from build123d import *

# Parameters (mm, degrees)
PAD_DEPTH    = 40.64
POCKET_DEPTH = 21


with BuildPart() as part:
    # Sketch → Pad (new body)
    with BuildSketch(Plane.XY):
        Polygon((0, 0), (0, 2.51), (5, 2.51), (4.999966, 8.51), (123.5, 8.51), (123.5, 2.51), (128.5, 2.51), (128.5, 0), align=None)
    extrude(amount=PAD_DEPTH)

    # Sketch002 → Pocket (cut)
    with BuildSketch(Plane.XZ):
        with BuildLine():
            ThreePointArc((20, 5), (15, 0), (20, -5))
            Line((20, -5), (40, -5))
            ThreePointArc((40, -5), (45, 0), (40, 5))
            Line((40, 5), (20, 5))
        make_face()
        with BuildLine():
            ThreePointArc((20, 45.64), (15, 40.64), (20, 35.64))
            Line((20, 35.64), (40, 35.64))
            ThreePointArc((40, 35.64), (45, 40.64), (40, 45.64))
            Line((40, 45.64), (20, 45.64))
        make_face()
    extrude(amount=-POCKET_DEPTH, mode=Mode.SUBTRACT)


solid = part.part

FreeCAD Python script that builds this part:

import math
import FreeCAD as App
import Part
import Sketcher

V = App.Vector


def add_polygon(sketch, points):
    """Adds a closed chain of lines whose ends are joined by coincident constraints."""
    first, n = sketch.GeometryCount, len(points)
    for a, b in zip(points, points[1:] + points[:1]):
        sketch.addGeometry(Part.LineSegment(App.Vector(*a, 0), App.Vector(*b, 0)), False)
    for i in range(n):
        sketch.addConstraint(Sketcher.Constraint("Coincident", first + i, 2, first + (i + 1) % n, 1))

doc = App.newDocument("Part")
body = doc.addObject("PartDesign::Body", "Body")

sketch1 = body.newObject("Sketcher::SketchObject", "Sketch")
sketch1.AttachmentSupport = (doc.getObject("XY_Plane"), [""])
sketch1.MapMode = "FlatFace"
add_polygon(sketch1, [(0, 2.51), (0, 0), (128.5, 0), (128.5, 2.51), (123.5, 2.51), (123.5, 8.51), (4.999966, 8.51), (5, 2.51)])
sketch1.addConstraint(Sketcher.Constraint("Vertical", 0))
sketch1.addConstraint(Sketcher.Constraint("Horizontal", 1))
sketch1.addConstraint(Sketcher.Constraint("Vertical", 2))
sketch1.addConstraint(Sketcher.Constraint("Horizontal", 3))
sketch1.addConstraint(Sketcher.Constraint("Vertical", 4))
sketch1.addConstraint(Sketcher.Constraint("Horizontal", 5))
sketch1.addConstraint(Sketcher.Constraint("Horizontal", 7))
sketch1.addConstraint(Sketcher.Constraint("Coincident", 0, 2, -1, 1))
sketch1.addConstraint(Sketcher.Constraint("Horizontal", 3, 2, 6, 2))
sketch1.addConstraint(Sketcher.Constraint("Equal", 3, 7))
sketch1.addConstraint(Sketcher.Constraint("DistanceX", 3, 2, 3, 1, 5.0))
sketch1.addConstraint(Sketcher.Constraint("DistanceY", 4, 1, 4, 2, 6.0))
sketch1.addConstraint(Sketcher.Constraint("DistanceX", 1, 1, 1, 2, 128.5))
sketch1.addConstraint(Sketcher.Constraint("DistanceY", 0, 2, 0, 1, 2.51))
sketch1.addConstraint(Sketcher.Constraint("DistanceX", 5, 2, 5, 1, 118.500034))
pad1 = body.newObject("PartDesign::Pad", "Pad")
pad1.Profile = sketch1
pad1.Length = 40.64

sketch2 = body.newObject("Sketcher::SketchObject", "Sketch001")
sketch2.AttachmentSupport = (doc.getObject("XZ_Plane"), [""])
sketch2.MapMode = "FlatFace"
sketch2.addGeometry(Part.ArcOfCircle(Part.Circle(V(20, 0, 0), V(0, 0, 1), 5), math.radians(90), math.radians(270)), False)
sketch2.addGeometry(Part.LineSegment(V(20, -5, 0), V(40, -5, 0)), False)
sketch2.addGeometry(Part.ArcOfCircle(Part.Circle(V(40, 0, 0), V(0, 0, 1), 5), math.radians(-90), math.radians(90)), False)
sketch2.addGeometry(Part.LineSegment(V(40, 5, 0), V(20, 5, 0)), False)
sketch2.addGeometry(Part.ArcOfCircle(Part.Circle(V(20, 40.64, 0), V(0, 0, 1), 5), math.radians(90), math.radians(270)), False)
sketch2.addGeometry(Part.LineSegment(V(20, 35.64, 0), V(40, 35.64, 0)), False)
sketch2.addGeometry(Part.ArcOfCircle(Part.Circle(V(40, 40.64, 0), V(0, 0, 1), 5), math.radians(-90), math.radians(90)), False)
sketch2.addGeometry(Part.LineSegment(V(40, 45.64, 0), V(20, 45.64, 0)), False)
sketch2.addConstraint(Sketcher.Constraint("Tangent", 0, 2, 1, 1))
sketch2.addConstraint(Sketcher.Constraint("Tangent", 1, 2, 2, 1))
sketch2.addConstraint(Sketcher.Constraint("Tangent", 2, 2, 3, 1))
sketch2.addConstraint(Sketcher.Constraint("Tangent", 3, 2, 0, 1))
sketch2.addConstraint(Sketcher.Constraint("Tangent", 4, 2, 5, 1))
sketch2.addConstraint(Sketcher.Constraint("Tangent", 5, 2, 6, 1))
sketch2.addConstraint(Sketcher.Constraint("Tangent", 6, 2, 7, 1))
sketch2.addConstraint(Sketcher.Constraint("Tangent", 7, 2, 4, 1))
sketch2.addConstraint(Sketcher.Constraint("Horizontal", 1))
sketch2.addConstraint(Sketcher.Constraint("Horizontal", 3))
sketch2.addConstraint(Sketcher.Constraint("Horizontal", 5))
sketch2.addConstraint(Sketcher.Constraint("Horizontal", 7))
sketch2.addConstraint(Sketcher.Constraint("Equal", 2, 4))
sketch2.addConstraint(Sketcher.Constraint("PointOnObject", 0, 3, -1))
sketch2.addConstraint(Sketcher.Constraint("Vertical", 0, 3, 4, 3))
sketch2.addConstraint(Sketcher.Constraint("Vertical", 2, 3, 6, 3))
sketch2.addConstraint(Sketcher.Constraint("Radius", 0, 5.0))
sketch2.addConstraint(Sketcher.Constraint("DistanceX", 1, 1, 1, 2, 20.0))
sketch2.addConstraint(Sketcher.Constraint("DistanceX", -1, 1, 0, 3, 20.0))
sketch2.addConstraint(Sketcher.Constraint("DistanceY", -1, 1, 4, 3, 40.64))
pocket1 = body.newObject("PartDesign::Pocket", "Pocket")
pocket1.Profile = sketch2
pocket1.Length = 21

doc.recompute()
